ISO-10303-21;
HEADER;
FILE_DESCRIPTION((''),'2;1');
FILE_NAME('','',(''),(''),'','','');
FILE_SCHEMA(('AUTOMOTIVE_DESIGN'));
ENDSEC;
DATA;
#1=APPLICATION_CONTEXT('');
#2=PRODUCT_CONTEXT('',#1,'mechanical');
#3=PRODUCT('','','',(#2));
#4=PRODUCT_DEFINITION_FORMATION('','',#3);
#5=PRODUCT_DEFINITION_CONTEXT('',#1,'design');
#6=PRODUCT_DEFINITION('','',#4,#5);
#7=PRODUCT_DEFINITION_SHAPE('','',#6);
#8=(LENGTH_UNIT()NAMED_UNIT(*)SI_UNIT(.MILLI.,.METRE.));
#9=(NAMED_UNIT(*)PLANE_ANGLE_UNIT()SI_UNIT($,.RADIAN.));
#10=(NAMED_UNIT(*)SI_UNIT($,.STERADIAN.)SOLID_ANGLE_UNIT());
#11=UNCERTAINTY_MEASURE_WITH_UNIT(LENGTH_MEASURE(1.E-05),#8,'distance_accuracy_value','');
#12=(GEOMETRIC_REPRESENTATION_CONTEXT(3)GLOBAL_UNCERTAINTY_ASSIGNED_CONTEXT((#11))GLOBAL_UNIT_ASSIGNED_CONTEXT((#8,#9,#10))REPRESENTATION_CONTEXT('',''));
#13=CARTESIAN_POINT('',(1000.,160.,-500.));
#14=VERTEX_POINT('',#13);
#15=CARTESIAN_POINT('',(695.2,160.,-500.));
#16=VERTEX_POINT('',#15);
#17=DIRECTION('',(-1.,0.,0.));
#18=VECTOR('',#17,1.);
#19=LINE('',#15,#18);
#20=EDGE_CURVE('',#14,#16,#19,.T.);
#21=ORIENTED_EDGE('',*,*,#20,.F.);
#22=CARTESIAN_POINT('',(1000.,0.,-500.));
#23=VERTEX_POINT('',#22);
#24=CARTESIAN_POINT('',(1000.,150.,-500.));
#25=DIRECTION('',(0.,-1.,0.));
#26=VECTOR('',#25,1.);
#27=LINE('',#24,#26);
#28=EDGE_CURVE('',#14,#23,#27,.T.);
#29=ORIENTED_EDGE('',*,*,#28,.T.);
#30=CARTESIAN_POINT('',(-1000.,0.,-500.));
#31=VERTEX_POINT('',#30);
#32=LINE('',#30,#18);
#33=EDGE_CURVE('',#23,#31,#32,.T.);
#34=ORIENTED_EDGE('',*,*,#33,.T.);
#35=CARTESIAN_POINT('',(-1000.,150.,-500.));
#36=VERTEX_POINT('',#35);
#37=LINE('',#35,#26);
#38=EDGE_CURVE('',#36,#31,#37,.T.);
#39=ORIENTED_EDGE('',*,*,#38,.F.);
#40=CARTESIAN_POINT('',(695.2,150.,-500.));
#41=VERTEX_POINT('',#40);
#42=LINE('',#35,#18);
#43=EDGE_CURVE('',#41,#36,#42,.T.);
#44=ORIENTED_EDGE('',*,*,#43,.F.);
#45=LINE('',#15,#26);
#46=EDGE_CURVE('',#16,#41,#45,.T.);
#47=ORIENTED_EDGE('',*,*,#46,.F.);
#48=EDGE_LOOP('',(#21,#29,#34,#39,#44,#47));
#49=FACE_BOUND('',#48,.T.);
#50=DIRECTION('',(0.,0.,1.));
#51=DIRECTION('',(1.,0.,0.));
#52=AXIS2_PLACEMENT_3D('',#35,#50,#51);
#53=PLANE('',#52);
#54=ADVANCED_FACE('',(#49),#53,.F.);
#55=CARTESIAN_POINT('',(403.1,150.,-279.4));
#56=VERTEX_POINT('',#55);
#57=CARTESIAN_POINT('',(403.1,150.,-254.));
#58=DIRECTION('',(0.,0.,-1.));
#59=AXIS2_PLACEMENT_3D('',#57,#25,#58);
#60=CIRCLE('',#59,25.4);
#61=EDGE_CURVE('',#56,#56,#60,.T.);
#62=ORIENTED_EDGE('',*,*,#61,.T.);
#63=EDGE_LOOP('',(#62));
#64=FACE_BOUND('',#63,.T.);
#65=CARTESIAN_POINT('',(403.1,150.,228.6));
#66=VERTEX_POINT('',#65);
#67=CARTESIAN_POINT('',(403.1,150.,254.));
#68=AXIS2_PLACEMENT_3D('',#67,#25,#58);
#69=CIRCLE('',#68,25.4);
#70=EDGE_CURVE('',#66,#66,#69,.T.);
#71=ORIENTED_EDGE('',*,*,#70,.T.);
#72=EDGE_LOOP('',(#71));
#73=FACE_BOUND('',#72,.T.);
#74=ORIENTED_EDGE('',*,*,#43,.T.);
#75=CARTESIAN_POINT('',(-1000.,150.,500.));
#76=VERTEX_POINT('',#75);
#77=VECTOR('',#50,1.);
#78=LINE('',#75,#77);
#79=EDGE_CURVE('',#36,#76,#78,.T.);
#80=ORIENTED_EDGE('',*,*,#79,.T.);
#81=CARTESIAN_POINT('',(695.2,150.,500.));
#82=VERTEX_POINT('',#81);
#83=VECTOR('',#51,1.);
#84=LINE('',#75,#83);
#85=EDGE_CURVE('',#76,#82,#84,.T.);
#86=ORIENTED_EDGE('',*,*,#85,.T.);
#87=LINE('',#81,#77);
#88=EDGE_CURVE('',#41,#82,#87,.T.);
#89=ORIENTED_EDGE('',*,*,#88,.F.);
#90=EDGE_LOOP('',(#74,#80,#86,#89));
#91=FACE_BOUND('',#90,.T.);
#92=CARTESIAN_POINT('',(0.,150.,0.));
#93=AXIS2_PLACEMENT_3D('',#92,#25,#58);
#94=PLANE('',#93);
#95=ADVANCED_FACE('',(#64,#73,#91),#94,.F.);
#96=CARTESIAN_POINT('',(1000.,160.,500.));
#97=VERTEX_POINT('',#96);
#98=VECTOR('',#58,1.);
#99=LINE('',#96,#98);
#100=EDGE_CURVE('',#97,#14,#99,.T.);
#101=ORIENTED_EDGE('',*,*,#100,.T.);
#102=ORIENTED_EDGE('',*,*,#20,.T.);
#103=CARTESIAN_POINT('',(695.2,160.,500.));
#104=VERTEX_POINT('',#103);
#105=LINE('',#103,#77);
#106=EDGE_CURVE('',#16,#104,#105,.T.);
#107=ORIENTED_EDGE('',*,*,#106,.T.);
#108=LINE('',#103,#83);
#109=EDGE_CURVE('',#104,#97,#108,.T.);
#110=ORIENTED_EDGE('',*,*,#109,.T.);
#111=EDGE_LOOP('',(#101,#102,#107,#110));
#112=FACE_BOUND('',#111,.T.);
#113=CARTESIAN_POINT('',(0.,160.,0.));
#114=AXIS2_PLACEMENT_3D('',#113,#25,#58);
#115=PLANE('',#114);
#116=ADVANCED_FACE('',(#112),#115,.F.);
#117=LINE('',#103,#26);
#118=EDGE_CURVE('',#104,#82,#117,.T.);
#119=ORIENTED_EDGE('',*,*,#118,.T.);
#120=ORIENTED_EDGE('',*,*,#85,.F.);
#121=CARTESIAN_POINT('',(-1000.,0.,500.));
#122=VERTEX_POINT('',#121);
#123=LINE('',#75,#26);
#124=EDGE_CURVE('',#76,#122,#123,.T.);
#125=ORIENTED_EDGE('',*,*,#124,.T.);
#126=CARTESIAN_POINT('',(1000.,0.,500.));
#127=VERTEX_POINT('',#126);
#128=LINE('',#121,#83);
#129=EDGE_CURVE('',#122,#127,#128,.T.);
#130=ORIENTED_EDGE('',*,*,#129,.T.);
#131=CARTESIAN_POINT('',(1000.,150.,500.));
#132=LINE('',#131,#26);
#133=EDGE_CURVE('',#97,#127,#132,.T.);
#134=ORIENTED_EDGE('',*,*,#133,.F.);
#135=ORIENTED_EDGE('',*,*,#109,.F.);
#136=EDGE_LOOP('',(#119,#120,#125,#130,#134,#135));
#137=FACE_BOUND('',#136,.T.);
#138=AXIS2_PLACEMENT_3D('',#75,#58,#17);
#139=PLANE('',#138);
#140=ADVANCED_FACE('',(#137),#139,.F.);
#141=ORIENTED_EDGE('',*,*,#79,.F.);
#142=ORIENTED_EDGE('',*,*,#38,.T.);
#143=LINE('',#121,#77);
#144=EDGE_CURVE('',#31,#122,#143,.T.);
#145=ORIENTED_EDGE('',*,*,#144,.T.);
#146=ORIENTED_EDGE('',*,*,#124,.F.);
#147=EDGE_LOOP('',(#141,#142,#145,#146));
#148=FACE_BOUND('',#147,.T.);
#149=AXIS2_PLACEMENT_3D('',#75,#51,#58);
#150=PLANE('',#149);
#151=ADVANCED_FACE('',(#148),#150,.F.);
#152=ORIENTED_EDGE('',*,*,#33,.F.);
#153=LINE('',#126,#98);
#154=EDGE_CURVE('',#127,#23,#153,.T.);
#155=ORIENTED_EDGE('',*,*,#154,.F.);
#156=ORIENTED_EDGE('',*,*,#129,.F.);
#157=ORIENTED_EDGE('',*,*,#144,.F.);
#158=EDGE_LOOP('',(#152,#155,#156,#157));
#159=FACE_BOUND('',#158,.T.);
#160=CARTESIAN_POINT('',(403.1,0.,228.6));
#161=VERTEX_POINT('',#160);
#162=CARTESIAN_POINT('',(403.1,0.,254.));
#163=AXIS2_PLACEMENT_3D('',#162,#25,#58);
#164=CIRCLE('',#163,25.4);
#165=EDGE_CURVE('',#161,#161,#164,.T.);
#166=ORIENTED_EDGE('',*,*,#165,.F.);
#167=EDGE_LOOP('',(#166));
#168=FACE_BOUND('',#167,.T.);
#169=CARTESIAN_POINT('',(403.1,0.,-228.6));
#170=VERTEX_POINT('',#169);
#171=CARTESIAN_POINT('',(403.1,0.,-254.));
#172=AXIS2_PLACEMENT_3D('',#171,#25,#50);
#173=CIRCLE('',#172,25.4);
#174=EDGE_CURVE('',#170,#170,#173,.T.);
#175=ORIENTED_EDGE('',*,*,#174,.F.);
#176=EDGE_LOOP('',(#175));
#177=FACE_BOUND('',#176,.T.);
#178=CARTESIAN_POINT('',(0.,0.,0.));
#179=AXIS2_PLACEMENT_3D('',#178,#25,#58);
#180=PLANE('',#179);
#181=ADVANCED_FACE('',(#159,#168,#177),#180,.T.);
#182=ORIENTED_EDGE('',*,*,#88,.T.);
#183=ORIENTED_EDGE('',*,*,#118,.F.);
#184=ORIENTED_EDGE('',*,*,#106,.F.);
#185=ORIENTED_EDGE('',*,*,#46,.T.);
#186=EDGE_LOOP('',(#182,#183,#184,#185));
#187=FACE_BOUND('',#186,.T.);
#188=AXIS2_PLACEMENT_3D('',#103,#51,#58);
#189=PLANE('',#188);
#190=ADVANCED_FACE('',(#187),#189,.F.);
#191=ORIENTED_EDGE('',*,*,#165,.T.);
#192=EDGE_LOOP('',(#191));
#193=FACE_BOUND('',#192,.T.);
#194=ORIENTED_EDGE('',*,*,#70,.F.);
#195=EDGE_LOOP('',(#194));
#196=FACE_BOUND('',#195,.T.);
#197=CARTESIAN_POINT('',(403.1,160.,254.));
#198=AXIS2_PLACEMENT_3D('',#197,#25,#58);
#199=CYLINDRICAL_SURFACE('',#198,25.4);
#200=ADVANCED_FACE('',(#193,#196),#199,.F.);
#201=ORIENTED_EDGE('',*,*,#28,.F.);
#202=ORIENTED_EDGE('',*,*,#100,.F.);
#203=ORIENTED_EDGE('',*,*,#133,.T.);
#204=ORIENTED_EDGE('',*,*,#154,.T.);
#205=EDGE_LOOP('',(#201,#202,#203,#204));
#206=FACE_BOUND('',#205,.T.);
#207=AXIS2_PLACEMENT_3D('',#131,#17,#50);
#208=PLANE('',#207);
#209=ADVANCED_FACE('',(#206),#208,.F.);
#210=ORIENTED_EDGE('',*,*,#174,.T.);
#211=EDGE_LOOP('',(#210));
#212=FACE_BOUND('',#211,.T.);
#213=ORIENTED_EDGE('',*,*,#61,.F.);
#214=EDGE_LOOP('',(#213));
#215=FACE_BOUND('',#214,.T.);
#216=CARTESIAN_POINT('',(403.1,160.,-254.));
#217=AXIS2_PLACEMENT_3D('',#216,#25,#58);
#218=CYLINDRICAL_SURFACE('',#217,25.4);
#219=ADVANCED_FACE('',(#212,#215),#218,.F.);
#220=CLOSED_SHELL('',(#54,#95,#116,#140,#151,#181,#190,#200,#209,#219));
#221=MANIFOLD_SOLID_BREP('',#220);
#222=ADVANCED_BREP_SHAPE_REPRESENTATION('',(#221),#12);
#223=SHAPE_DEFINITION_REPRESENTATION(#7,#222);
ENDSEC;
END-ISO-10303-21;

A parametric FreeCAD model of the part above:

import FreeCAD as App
import Part
import Sketcher


def add_polygon(sketch, points):
    """Adds a closed chain of lines whose ends are joined by coincident constraints."""
    first, n = sketch.GeometryCount, len(points)
    for a, b in zip(points, points[1:] + points[:1]):
        sketch.addGeometry(Part.LineSegment(App.Vector(*a, 0), App.Vector(*b, 0)), False)
    for i in range(n):
        sketch.addConstraint(Sketcher.Constraint("Coincident", first + i, 2, first + (i + 1) % n, 1))

doc = App.newDocument("Part")
body = doc.addObject("PartDesign::Body", "Body")

# Sketch on XZ plane
sketch1 = doc.addObject("Sketcher::SketchObject", "Sketch")
body.addObject(sketch1)
sketch1.AttachmentSupport = (doc.XZ_Plane, [""])
sketch1.MapMode = "FlatFace"
add_polygon(sketch1, [(-1000, -500), (-1000, 500), (1000, 500), (1000, -500)])  # lines 0-3
sketch1.addConstraint([
    Sketcher.Constraint("Vertical", 0),
    Sketcher.Constraint("Horizontal", 1),
    Sketcher.Constraint("Vertical", 2),
    Sketcher.Constraint("Horizontal", 3),
    Sketcher.Constraint("Symmetric", 0, 2, 2, 2, -1, 1),
    Sketcher.Constraint("DistanceX", 1, 1, 1, 2, 2000.0),
    Sketcher.Constraint("DistanceY", 0, 1, 0, 2, 1000.0),
])
pad1 = doc.addObject("PartDesign::Pad", "Pad")
body.addObject(pad1)
pad1.Profile = sketch1
pad1.Length = 150
pad1.Reversed = True

# Sketch on XZ plane
sketch2 = doc.addObject("Sketcher::SketchObject", "Sketch001")
body.addObject(sketch2)
sketch2.AttachmentSupport = (doc.XZ_Plane, [""])
sketch2.MapMode = "FlatFace"
sketch2.AttachmentOffset = App.Placement(App.Vector(0, 0, -150), App.Rotation())
add_polygon(sketch2, [(695.2, -500), (695.2, 500), (1000, 500), (1000, -500)])  # lines 0-3
sketch2.addConstraint([
    Sketcher.Constraint("Vertical", 0),
    Sketcher.Constraint("Horizontal", 1),
    Sketcher.Constraint("Vertical", 2),
    Sketcher.Constraint("Horizontal", 3),
    Sketcher.Constraint("DistanceY", 0, 1, 0, 2, 1000.0),
    Sketcher.Constraint("DistanceX", 1, 1, 1, 2, 304.8),
    Sketcher.Constraint("DistanceY", -1, 1, 0, 2, 500.0),
    Sketcher.Constraint("DistanceX", -1, 1, 1, 2, 1000.0),
])
pad2 = doc.addObject("PartDesign::Pad", "Pad001")
body.addObject(pad2)
pad2.Profile = sketch2
pad2.Length = 10
pad2.Reversed = True

# Sketch on XZ plane
sketch3 = doc.addObject("Sketcher::SketchObject", "Sketch002")
body.addObject(sketch3)
sketch3.AttachmentSupport = (doc.XZ_Plane, [""])
sketch3.MapMode = "FlatFace"
sketch3.addGeometry([
    Part.Circle(App.Vector(403.1, 254, 0), App.Vector(0, 0, 1), 25.4),
    Part.Circle(App.Vector(403.1, -254, 0), App.Vector(0, 0, 1), 25.4),
], False)
sketch3.addConstraint([
    Sketcher.Constraint("Equal", 0, 1),
    Sketcher.Constraint("Symmetric", 0, 3, 1, 3, -1),
    Sketcher.Constraint("Diameter", 0, 50.8),
    Sketcher.Constraint("DistanceY", -1, 1, 0, 3, 254.0),
    Sketcher.Constraint("DistanceX", -1, 1, 0, 3, 403.1),
])
pocket1 = doc.addObject("PartDesign::Pocket", "Pocket")
body.addObject(pocket1)
pocket1.Profile = sketch3
pocket1.Type = "ThroughAll"

doc.recompute()
